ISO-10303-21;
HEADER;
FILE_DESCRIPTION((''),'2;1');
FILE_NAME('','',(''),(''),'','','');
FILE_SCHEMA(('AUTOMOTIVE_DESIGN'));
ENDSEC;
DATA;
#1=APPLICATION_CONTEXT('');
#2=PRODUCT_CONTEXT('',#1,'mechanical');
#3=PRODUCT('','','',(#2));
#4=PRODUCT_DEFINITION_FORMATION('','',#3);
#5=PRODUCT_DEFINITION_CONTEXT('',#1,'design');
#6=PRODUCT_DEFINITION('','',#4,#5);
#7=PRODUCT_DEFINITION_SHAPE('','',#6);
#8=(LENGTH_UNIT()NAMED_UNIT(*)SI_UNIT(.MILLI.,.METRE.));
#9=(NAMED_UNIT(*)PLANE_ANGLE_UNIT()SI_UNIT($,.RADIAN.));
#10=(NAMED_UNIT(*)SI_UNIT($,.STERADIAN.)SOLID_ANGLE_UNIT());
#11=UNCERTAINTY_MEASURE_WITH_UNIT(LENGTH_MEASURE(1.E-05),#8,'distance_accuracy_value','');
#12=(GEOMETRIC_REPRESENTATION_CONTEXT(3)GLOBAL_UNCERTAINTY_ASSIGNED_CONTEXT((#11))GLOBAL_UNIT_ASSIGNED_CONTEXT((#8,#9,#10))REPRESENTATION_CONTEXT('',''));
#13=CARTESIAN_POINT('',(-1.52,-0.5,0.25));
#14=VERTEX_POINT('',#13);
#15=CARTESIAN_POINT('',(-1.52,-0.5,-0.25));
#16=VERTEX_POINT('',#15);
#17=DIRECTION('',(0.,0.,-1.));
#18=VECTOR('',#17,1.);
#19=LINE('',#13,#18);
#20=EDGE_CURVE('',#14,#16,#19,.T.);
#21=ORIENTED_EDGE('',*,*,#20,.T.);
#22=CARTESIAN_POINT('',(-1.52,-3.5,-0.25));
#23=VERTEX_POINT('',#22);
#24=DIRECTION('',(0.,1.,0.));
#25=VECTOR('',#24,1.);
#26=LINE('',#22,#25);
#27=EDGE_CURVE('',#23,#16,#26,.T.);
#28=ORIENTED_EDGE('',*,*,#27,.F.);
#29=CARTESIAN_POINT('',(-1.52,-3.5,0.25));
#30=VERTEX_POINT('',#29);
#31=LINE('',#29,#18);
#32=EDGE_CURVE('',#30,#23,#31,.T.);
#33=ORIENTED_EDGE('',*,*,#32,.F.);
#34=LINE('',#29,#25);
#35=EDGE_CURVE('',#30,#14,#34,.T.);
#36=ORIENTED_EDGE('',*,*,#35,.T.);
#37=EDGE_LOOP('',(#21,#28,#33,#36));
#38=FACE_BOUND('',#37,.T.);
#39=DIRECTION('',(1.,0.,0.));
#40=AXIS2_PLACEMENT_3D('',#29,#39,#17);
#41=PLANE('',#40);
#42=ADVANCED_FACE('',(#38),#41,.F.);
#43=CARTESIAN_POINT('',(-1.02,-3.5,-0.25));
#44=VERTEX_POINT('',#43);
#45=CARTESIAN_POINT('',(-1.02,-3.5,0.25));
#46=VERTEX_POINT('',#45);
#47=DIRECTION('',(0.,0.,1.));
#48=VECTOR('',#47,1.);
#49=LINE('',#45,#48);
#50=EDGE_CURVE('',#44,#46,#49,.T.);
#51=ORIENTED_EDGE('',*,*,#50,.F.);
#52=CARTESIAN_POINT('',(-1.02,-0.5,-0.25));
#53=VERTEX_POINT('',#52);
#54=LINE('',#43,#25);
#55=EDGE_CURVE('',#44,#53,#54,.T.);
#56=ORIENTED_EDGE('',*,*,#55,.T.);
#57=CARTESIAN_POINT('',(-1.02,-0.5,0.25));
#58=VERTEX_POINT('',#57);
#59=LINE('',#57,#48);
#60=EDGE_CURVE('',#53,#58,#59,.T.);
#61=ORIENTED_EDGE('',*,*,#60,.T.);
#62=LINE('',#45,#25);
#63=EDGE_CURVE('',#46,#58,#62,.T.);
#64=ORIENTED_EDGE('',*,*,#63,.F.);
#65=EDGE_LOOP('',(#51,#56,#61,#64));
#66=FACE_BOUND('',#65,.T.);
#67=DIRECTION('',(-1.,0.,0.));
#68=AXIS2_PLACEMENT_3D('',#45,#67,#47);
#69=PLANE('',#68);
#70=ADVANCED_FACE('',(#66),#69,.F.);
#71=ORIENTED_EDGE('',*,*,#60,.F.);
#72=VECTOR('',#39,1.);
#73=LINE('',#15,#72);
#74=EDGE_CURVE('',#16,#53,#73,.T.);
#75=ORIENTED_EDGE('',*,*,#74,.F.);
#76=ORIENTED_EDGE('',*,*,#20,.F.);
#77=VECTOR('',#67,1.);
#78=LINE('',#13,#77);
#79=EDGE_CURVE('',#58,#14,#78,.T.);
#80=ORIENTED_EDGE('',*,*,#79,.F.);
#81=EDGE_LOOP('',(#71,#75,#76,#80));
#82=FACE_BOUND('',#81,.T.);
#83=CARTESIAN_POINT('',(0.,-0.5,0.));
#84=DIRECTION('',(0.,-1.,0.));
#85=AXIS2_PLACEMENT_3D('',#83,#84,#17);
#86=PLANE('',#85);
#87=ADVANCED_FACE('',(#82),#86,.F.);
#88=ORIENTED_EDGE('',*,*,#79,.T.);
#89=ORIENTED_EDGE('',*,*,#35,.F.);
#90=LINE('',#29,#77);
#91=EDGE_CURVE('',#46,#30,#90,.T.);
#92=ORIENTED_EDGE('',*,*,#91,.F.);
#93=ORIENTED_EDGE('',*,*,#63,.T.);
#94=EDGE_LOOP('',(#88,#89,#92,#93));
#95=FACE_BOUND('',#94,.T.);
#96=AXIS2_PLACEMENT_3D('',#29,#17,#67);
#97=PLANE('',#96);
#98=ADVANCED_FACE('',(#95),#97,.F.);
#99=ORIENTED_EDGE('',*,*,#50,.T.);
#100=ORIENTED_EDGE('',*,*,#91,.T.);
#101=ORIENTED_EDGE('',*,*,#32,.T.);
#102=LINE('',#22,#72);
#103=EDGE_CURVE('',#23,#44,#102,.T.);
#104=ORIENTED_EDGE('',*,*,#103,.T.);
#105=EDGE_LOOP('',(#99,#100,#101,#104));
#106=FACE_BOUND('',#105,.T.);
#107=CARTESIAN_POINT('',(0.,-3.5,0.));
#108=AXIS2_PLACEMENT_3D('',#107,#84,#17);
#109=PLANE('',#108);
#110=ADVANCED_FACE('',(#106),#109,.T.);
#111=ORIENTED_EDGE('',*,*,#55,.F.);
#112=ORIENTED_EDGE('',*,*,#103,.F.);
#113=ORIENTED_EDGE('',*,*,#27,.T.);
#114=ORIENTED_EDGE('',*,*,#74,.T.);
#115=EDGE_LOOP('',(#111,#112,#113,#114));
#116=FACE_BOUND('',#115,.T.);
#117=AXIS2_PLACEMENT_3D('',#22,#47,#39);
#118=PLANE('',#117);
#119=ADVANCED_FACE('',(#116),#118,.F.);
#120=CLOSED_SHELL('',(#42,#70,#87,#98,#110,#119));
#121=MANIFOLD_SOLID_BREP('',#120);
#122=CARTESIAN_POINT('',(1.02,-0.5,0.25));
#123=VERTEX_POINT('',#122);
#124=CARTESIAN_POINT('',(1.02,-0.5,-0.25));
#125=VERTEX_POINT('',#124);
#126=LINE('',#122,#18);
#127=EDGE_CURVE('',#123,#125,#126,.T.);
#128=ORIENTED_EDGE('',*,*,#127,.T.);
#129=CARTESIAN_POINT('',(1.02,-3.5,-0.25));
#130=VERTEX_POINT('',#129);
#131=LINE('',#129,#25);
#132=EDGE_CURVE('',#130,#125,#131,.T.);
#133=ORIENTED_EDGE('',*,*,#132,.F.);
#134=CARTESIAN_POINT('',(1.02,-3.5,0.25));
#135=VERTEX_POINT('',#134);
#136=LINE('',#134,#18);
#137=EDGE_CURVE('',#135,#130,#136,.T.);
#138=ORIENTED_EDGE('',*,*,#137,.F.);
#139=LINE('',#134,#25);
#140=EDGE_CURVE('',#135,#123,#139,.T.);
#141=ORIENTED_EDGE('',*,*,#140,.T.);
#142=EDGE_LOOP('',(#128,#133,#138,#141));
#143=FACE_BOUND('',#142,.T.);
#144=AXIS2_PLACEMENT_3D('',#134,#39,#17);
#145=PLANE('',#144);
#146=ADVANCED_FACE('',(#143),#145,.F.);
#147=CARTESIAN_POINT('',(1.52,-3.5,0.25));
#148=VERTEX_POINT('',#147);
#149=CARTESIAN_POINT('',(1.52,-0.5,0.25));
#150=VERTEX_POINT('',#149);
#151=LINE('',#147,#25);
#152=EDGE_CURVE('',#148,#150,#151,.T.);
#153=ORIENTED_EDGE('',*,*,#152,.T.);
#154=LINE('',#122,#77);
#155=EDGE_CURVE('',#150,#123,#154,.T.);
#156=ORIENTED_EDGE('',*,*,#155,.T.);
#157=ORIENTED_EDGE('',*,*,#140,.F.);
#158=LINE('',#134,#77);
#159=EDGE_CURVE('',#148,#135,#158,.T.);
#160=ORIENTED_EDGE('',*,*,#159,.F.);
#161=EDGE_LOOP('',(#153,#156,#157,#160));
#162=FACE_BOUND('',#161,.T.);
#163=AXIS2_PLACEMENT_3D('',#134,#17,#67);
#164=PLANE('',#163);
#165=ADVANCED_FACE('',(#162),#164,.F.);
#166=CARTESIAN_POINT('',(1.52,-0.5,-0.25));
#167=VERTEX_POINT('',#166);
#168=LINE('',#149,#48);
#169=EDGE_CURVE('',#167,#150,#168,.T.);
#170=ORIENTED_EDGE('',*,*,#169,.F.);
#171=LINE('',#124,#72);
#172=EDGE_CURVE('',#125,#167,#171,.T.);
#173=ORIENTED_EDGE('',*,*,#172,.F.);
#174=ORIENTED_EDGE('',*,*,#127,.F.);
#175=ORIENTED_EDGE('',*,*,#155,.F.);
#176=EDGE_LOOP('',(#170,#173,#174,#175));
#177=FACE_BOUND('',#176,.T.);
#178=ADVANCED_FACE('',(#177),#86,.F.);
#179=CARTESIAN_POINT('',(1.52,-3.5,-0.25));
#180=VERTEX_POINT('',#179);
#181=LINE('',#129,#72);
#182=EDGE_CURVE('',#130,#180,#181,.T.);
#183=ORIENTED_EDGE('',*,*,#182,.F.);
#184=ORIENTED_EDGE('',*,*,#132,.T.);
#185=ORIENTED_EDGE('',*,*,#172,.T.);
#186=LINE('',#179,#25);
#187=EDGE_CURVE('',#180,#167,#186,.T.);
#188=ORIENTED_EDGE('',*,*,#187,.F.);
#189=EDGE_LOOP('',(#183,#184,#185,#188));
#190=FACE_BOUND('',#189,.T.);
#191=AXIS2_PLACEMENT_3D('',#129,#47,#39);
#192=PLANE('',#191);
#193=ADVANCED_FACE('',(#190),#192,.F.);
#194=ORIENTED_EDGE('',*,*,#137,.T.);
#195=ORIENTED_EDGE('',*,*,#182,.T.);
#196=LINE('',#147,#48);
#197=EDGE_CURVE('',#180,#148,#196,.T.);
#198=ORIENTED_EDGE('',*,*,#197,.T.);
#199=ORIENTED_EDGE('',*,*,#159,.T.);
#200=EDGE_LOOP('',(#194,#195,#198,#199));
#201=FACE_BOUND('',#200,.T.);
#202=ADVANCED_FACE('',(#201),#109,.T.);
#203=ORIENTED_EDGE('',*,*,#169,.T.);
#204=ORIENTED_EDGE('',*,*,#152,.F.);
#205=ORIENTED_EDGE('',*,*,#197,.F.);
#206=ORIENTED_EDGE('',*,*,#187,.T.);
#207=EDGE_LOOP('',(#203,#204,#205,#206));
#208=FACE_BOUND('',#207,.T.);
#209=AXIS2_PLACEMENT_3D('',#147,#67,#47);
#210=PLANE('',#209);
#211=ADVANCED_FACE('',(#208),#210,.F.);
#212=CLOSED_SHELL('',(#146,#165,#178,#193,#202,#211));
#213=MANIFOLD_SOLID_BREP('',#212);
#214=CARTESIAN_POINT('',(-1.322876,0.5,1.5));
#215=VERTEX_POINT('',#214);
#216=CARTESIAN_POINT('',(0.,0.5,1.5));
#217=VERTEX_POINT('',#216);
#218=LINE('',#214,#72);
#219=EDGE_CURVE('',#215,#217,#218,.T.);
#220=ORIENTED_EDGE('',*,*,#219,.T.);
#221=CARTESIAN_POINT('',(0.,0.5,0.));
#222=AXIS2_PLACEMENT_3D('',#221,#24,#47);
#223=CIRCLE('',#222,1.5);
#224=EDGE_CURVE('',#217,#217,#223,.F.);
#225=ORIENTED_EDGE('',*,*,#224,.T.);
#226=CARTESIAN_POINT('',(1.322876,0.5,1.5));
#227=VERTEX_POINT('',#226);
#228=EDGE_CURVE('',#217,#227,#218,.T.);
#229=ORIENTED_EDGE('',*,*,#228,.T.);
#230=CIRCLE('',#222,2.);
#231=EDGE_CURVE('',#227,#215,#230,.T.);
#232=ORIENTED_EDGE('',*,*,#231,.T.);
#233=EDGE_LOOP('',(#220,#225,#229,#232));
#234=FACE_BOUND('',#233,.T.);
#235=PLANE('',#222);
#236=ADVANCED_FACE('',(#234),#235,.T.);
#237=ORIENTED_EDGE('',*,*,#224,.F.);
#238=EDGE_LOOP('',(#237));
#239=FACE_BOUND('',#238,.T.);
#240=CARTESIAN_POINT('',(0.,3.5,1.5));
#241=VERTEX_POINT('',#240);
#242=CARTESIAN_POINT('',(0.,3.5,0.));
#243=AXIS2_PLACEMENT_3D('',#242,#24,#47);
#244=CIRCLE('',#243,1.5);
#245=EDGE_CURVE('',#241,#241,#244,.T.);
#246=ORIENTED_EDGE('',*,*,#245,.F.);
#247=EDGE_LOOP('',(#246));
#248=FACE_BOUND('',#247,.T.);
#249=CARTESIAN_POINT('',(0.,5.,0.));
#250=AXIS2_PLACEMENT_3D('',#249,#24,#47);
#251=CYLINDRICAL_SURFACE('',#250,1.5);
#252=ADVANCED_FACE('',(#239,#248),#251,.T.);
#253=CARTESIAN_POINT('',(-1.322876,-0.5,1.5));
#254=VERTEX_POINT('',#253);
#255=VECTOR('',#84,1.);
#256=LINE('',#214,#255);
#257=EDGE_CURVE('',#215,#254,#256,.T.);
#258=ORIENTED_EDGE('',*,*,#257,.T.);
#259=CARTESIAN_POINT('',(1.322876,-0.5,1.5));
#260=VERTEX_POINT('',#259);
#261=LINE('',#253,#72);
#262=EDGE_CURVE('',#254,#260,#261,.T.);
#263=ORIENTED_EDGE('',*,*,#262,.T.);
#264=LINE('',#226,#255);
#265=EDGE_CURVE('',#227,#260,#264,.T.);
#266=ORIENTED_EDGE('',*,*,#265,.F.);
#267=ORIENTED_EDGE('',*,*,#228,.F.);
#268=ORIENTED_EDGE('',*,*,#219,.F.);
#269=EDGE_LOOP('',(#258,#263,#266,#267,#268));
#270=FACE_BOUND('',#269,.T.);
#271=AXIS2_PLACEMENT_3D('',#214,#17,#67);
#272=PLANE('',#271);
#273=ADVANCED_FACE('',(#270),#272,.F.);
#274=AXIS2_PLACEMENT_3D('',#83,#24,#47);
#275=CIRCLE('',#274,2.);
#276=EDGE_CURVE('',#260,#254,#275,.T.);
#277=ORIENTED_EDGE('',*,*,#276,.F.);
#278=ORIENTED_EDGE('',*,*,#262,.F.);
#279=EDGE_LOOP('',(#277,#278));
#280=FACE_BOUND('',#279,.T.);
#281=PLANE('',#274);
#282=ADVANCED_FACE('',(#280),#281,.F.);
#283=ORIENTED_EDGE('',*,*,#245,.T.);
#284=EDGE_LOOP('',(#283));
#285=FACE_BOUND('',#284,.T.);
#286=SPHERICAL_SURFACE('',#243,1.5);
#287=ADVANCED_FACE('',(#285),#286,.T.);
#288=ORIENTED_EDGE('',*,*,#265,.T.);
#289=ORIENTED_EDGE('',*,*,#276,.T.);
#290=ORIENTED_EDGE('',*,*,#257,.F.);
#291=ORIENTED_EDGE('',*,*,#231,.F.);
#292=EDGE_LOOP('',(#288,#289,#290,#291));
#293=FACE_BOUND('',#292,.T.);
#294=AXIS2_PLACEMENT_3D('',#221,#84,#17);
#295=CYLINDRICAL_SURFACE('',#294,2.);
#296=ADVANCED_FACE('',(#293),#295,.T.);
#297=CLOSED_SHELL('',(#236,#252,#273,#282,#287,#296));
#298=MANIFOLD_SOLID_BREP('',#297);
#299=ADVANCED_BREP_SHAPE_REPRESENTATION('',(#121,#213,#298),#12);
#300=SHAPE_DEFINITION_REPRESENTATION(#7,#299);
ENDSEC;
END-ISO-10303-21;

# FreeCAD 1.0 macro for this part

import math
import FreeCAD as App
import Part
import Sketcher

V = App.Vector

doc = App.newDocument("Part")
params = doc.addObject("Spreadsheet::Sheet", "Params")
for row, (alias, value) in enumerate([
    ("sketch1_radius", "1.5 mm"),
    ("sketch1_width", "5 mm"),
    ("revolution_angle", "360 deg"),
    ("sketch2_radius", "2 mm"),
    ("pad1_length", "1 mm"),
    ("sketch3_width", "0.5 mm"),
    ("pad2_length", "3 mm"),
    ("sketch4_width", "0.5 mm"),
    ("pad3_length", "3 mm"),
], start=1):
    params.set(f"A{row}", alias)
    params.set(f"B{row}", "=" + value)
    params.setAlias(f"B{row}", alias)

body = doc.addObject("PartDesign::Body", "Body")

# Sketch on YZ plane
sketch1 = body.newObject("Sketcher::SketchObject", "Sketch")
sketch1.AttachmentSupport = (doc.getObject("YZ_Plane"), [""])
sketch1.MapMode = "FlatFace"
sketch1.addGeometry([
    Part.LineSegment(V(3.5, 1.5, 0), V(0, 1.5, 0)),
    Part.LineSegment(V(0, 1.5, 0), V(0, 0, 0)),
    Part.LineSegment(V(0, 0, 0), V(5, 0, 0)),
    Part.ArcOfCircle(Part.Circle(V(3.5, 0, 0), V(0, 0, 1), 1.5), math.radians(0), math.radians(90)),
], False)
sketch1.addConstraint([
    Sketcher.Constraint("Coincident", 0, 2, 1, 1),
    Sketcher.Constraint("Coincident", 1, 2, 2, 1),
    Sketcher.Constraint("Coincident", 2, 2, 3, 1),
    Sketcher.Constraint("Tangent", 3, 2, 0, 1),
    Sketcher.Constraint("Horizontal", 0),
    Sketcher.Constraint("Vertical", 1),
    Sketcher.Constraint("Horizontal", 2),
    Sketcher.Constraint("Coincident", 1, 2, -1, 1),
    Sketcher.Constraint("PointOnObject", 3, 3, -1),
    Sketcher.Constraint("Radius", 3, 1.5),
    Sketcher.Constraint("DistanceX", 2, 1, 2, 2, 5.0),
])
sketch1.setExpression("Constraints[9]", "Params.sketch1_radius")
sketch1.setExpression("Constraints[10]", "Params.sketch1_width")
revolution = body.newObject("PartDesign::Revolution", "Revolution")
revolution.Profile = sketch1
revolution.ReferenceAxis = (sketch1, ["H_Axis"])
revolution.setExpression("Angle", "Params.revolution_angle")

# Sketch on XZ plane
sketch2 = body.newObject("Sketcher::SketchObject", "Sketch001")
sketch2.AttachmentSupport = (doc.getObject("XZ_Plane"), [""])
sketch2.MapMode = "FlatFace"
sketch2.addGeometry([
    Part.LineSegment(V(-1.3, 1.5, 0), V(1.3, 1.5, 0)),
    Part.ArcOfCircle(Part.Circle(V(0, 0, 0), V(0, 0, 1), 2), math.radians(131), math.radians(409)),
], False)
sketch2.addConstraint([
    Sketcher.Constraint("Coincident", 0, 1, 1, 1),
    Sketcher.Constraint("Coincident", 1, 2, 0, 2),
    Sketcher.Constraint("Horizontal", 0),
    Sketcher.Constraint("Coincident", 1, 3, -1, 1),
    Sketcher.Constraint("Radius", 1, 2.0),
    Sketcher.Constraint("DistanceY", -1, 1, 0, 1, 1.5),
])
sketch2.setExpression("Constraints[4]", "Params.sketch2_radius")
pad1 = body.newObject("PartDesign::Pad", "Pad")
pad1.Profile = sketch2
pad1.setExpression("Length", "Params.pad1_length")
pad1.Midplane = True
body2 = doc.addObject("PartDesign::Body", "Body001")

# Sketch on XZ plane
sketch3 = body2.newObject("Sketcher::SketchObject", "Sketch002")
sketch3.AttachmentSupport = (doc.getObject("XZ_Plane001"), [""])
sketch3.MapMode = "FlatFace"
sketch3.AttachmentOffset = App.Placement(V(0, 0, 0.5), App.Rotation())
sketch3.addGeometry([
    Part.LineSegment(V(-1.5, 0.2, 0), V(-1.5, -0.2, 0)),
    Part.LineSegment(V(-1.5, -0.2, 0), V(-1, -0.2, 0)),
    Part.LineSegment(V(-1, -0.2, 0), V(-1, 0.2, 0)),
    Part.LineSegment(V(-1, 0.2, 0), V(-1.5, 0.2, 0)),
], False)
sketch3.addConstraint([
    Sketcher.Constraint("Coincident", 0, 2, 1, 1),
    Sketcher.Constraint("Coincident", 1, 2, 2, 1),
    Sketcher.Constraint("Coincident", 2, 2, 3, 1),
    Sketcher.Constraint("Coincident", 3, 2, 0, 1),
    Sketcher.Constraint("Vertical", 0),
    Sketcher.Constraint("Horizontal", 1),
    Sketcher.Constraint("Vertical", 2),
    Sketcher.Constraint("Horizontal", 3),
    Sketcher.Constraint("Equal", 3, 0),
    Sketcher.Constraint("DistanceX", 1, 1, 1, 2, 0.5),
    Sketcher.Constraint("DistanceX", 0, 2, -1, 1, 1.52),
    Sketcher.Constraint("DistanceY", 0, 2, -1, 1, 0.25),
])
sketch3.setExpression("Constraints[9]", "Params.sketch3_width")
pad2 = body2.newObject("PartDesign::Pad", "Pad001")
pad2.Profile = sketch3
pad2.setExpression("Length", "Params.pad2_length")
body3 = doc.addObject("PartDesign::Body", "Body002")

# Sketch on XZ plane
sketch4 = body3.newObject("Sketcher::SketchObject", "Sketch003")
sketch4.AttachmentSupport = (doc.getObject("XZ_Plane002"), [""])
sketch4.MapMode = "FlatFace"
sketch4.AttachmentOffset = App.Placement(V(0, 0, 0.5), App.Rotation())
sketch4.addGeometry([
    Part.LineSegment(V(1, 0.2, 0), V(1, -0.2, 0)),
    Part.LineSegment(V(1, -0.2, 0), V(1.5, -0.2, 0)),
    Part.LineSegment(V(1.5, -0.2, 0), V(1.5, 0.2, 0)),
    Part.LineSegment(V(1.5, 0.2, 0), V(1, 0.2, 0)),
], False)
sketch4.addConstraint([
    Sketcher.Constraint("Coincident", 0, 2, 1, 1),
    Sketcher.Constraint("Coincident", 1, 2, 2, 1),
    Sketcher.Constraint("Coincident", 2, 2, 3, 1),
    Sketcher.Constraint("Coincident", 3, 2, 0, 1),
    Sketcher.Constraint("Vertical", 0),
    Sketcher.Constraint("Horizontal", 1),
    Sketcher.Constraint("Vertical", 2),
    Sketcher.Constraint("Horizontal", 3),
    Sketcher.Constraint("Equal", 3, 0),
    Sketcher.Constraint("DistanceX", 1, 1, 1, 2, 0.5),
    Sketcher.Constraint("DistanceX", -1, 1, 0, 2, 1.02),
    Sketcher.Constraint("DistanceY", 0, 2, -1, 1, 0.25),
])
sketch4.setExpression("Constraints[9]", "Params.sketch4_width")
pad3 = body3.newObject("PartDesign::Pad", "Pad002")
pad3.Profile = sketch4
pad3.setExpression("Length", "Params.pad3_length")

doc.recompute()
